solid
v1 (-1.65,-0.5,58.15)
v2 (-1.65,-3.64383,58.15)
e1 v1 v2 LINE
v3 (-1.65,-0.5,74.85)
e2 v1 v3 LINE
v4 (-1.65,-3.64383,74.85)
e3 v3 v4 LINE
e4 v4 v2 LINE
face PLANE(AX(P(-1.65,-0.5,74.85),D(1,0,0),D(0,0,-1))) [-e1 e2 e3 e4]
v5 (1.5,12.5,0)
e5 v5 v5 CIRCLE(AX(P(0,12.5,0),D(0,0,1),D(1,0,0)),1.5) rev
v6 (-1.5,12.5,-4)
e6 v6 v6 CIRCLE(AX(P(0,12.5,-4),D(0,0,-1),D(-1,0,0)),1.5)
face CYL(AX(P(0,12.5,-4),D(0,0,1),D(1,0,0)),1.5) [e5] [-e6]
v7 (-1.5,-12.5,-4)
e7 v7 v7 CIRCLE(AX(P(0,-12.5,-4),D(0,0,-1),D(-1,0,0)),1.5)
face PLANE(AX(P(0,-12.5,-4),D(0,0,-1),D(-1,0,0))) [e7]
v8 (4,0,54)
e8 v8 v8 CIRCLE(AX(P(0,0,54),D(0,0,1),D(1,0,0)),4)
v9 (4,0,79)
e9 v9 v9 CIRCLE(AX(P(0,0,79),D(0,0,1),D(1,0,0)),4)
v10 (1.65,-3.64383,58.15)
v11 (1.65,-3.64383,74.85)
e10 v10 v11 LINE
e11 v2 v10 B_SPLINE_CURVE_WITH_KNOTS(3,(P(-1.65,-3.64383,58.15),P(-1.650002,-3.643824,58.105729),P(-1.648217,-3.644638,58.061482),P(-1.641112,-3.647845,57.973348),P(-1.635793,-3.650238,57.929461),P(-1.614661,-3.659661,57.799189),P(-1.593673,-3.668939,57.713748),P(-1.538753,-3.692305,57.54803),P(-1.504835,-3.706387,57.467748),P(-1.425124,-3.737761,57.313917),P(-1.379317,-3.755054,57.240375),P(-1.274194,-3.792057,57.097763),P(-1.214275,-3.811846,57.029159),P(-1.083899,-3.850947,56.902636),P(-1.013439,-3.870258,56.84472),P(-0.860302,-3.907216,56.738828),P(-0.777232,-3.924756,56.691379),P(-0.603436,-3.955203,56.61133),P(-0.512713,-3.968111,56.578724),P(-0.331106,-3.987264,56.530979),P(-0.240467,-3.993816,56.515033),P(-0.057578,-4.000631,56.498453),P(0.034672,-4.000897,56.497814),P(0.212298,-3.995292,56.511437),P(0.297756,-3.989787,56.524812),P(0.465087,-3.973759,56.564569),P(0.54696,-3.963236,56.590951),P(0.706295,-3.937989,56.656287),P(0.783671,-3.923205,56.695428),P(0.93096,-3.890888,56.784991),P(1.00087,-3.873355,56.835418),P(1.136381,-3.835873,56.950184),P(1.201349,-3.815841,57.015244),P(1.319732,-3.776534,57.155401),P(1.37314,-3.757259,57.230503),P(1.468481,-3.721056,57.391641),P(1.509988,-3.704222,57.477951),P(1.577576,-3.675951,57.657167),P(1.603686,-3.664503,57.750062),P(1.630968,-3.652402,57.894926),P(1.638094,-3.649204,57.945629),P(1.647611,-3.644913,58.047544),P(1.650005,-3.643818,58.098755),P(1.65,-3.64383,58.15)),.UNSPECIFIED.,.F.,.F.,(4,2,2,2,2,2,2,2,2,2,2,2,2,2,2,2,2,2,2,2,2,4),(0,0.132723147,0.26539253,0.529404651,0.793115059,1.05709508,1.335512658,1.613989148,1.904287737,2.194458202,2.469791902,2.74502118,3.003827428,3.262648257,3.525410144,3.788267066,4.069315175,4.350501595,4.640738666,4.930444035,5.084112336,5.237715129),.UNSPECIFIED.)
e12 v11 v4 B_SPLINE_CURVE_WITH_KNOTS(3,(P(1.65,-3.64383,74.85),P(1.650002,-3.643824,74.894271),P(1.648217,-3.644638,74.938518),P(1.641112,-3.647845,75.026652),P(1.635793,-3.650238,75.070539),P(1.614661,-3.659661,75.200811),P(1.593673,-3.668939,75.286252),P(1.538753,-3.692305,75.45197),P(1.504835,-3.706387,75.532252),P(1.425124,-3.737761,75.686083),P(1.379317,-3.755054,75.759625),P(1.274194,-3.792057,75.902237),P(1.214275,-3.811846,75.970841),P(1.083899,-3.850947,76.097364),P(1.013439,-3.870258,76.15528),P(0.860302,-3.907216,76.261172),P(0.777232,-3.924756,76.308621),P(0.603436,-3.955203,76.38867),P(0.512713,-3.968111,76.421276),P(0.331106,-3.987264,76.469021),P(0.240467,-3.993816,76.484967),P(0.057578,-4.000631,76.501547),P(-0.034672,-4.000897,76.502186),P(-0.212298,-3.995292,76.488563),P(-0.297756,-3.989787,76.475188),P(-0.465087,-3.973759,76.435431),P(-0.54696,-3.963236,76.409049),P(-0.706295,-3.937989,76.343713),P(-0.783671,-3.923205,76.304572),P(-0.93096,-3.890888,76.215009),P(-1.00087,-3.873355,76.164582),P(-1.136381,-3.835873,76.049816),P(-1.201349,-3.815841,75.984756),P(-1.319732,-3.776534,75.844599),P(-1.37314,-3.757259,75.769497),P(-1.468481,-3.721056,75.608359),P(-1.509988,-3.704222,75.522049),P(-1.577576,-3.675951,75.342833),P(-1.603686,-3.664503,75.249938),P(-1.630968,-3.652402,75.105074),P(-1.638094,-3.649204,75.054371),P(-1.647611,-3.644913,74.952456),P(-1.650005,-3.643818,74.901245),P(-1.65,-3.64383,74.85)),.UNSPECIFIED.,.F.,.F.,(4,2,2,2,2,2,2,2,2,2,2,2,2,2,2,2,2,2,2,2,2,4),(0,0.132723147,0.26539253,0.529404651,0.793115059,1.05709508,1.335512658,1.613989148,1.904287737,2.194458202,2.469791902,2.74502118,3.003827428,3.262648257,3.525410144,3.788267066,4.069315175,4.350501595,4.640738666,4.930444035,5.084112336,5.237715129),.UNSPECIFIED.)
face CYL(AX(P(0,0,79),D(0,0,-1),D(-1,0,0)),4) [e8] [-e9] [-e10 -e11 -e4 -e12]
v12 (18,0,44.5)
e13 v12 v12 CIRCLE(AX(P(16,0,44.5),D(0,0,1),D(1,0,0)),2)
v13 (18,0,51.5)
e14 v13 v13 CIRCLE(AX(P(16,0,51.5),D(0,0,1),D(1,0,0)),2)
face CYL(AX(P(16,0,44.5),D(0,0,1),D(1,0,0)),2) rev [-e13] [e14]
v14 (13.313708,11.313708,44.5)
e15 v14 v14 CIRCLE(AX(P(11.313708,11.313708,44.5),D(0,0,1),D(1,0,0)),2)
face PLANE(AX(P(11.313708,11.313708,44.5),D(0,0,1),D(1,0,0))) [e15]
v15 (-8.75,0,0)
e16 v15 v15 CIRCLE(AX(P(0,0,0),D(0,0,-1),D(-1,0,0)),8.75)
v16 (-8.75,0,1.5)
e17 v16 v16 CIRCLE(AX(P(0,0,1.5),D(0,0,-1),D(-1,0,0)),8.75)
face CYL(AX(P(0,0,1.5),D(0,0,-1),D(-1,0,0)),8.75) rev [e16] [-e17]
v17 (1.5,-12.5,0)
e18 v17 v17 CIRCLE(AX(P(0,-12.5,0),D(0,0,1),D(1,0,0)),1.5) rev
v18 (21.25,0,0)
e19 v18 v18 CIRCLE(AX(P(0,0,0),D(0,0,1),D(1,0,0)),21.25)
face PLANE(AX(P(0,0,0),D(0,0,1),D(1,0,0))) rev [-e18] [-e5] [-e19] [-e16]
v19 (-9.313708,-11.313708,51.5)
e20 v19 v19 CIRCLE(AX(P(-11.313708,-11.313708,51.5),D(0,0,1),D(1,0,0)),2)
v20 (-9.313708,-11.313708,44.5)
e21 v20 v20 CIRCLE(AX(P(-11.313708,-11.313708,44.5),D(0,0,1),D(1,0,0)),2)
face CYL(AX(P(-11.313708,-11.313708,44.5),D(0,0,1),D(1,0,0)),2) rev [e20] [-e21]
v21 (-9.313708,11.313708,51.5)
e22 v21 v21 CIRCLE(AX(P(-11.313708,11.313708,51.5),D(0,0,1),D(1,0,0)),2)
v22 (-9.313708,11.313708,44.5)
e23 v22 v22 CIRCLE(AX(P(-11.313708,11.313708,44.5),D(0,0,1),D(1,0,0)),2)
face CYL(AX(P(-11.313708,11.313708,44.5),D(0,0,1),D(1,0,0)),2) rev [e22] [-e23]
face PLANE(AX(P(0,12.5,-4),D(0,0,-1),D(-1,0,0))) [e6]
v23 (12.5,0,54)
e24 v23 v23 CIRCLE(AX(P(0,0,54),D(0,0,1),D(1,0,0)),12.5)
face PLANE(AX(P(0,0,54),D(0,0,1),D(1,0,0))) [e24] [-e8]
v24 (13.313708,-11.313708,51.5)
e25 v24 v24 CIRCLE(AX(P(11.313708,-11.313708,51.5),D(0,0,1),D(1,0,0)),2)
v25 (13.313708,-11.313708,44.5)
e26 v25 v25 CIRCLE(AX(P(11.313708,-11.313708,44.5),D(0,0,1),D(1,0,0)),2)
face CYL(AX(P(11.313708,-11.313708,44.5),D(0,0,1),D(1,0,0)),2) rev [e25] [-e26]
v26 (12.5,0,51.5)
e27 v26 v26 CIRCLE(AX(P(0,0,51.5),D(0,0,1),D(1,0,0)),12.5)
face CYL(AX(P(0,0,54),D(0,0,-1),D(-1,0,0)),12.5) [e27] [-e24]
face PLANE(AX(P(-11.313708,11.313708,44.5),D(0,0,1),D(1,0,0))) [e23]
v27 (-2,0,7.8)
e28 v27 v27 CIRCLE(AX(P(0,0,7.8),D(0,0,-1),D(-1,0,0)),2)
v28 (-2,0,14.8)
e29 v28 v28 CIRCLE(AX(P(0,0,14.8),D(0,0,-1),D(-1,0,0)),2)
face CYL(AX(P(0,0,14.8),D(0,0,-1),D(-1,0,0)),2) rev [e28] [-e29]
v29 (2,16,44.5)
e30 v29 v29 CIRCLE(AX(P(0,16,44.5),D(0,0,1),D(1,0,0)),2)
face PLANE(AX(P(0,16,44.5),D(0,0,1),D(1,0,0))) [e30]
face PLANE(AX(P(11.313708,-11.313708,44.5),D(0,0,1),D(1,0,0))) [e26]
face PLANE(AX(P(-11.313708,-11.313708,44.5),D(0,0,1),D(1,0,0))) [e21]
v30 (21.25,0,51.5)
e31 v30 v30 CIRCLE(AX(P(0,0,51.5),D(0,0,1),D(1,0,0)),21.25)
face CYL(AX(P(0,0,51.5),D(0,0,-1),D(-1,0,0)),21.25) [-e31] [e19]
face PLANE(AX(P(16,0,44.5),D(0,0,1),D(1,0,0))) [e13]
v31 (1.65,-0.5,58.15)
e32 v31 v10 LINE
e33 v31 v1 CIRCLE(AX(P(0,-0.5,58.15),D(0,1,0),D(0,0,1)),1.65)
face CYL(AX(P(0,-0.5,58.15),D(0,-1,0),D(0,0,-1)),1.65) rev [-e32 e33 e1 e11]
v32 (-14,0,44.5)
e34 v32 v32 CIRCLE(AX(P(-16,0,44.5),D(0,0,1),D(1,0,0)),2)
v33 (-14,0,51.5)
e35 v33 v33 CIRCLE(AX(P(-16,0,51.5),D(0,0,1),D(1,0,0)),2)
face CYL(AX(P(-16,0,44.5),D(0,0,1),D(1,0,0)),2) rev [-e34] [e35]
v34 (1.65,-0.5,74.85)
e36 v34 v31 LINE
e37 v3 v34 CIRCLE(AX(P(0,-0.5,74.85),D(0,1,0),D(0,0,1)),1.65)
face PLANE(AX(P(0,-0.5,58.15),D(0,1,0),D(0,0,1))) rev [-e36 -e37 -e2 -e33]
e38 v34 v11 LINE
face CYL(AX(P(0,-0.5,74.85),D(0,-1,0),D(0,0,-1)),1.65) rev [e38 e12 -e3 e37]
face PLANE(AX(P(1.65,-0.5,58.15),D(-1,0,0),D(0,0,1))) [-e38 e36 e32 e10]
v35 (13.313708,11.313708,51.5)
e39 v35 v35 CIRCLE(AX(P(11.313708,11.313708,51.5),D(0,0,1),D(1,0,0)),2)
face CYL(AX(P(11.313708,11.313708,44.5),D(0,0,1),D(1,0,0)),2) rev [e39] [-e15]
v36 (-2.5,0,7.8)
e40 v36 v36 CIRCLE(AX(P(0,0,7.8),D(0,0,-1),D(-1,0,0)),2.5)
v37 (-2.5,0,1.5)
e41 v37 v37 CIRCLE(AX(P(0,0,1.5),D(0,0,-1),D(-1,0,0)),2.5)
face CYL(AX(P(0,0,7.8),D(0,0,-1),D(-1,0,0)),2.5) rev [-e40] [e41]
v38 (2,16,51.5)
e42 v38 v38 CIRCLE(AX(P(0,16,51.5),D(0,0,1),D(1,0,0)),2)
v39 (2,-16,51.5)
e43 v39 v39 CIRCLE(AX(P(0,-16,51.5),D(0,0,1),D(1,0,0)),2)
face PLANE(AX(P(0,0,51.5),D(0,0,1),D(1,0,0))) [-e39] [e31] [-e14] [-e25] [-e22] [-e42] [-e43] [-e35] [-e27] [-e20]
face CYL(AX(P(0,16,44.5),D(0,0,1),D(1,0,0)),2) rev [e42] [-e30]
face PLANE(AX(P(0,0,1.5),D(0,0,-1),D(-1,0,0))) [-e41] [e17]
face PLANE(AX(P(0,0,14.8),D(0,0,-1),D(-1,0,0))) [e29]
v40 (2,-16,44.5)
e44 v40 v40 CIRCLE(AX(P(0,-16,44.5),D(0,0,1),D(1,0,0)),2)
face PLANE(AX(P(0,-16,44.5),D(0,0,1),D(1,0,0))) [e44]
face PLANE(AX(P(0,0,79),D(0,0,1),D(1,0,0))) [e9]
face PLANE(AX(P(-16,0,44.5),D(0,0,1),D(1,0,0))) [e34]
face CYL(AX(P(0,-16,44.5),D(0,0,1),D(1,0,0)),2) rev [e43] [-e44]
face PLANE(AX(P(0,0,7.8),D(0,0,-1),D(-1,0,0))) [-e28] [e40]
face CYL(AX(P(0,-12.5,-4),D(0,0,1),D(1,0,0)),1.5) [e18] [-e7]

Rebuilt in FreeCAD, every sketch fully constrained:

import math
import FreeCAD as App
import Part
import Sketcher
from FreeCAD import Vector
Q = App.Units.Quantity

doc = App.newDocument("Part")
body = doc.addObject("PartDesign::Body", "Body")

# Sketch on XY plane
sketch1 = doc.addObject("Sketcher::SketchObject", "Sketch")
body.addObject(sketch1)
sketch1.AttachmentSupport = (doc.XY_Plane, [""])
sketch1.MapMode = "FlatFace"
sketch1.addGeometry(Part.Circle(Vector(0, 0, 0), Vector(0, 0, 1), 21), False)
sketch1.addConstraint(Sketcher.Constraint("Coincident", 0, 3, -1, 1))
sketch1.addConstraint(Sketcher.Constraint("Diameter", 0, Q("42.5 mm")))
pad1 = doc.addObject("PartDesign::Pad", "Pad")
body.addObject(pad1)
pad1.Profile = sketch1
pad1.Length = 51.5

# Sketch on XY plane
sketch2 = doc.addObject("Sketcher::SketchObject", "Sketch001")
body.addObject(sketch2)
sketch2.AttachmentSupport = (doc.XY_Plane, [""])
sketch2.MapMode = "FlatFace"
sketch2.addGeometry(Part.Circle(Vector(0, 12.5, 0), Vector(0, 0, 1), 1.5), False)
sketch2.addGeometry(Part.Circle(Vector(0, -12.5, 0), Vector(0, 0, 1), 1.5), False)
sketch2.addConstraint(Sketcher.Constraint("Equal", 0, 1))
sketch2.addConstraint(Sketcher.Constraint("Symmetric", 0, 3, 1, 3, -1, 1))
sketch2.addConstraint(Sketcher.Constraint("PointOnObject", 0, 3, -2))
sketch2.addConstraint(Sketcher.Constraint("Diameter", 0, Q("3 mm")))
sketch2.addConstraint(Sketcher.Constraint("DistanceY", 1, 3, 0, 3, Q("25 mm")))
pad2 = doc.addObject("PartDesign::Pad", "Pad001")
body.addObject(pad2)
pad2.Profile = sketch2
pad2.Length = 4
pad2.Reversed = True

# Sketch on XY plane
sketch3 = doc.addObject("Sketcher::SketchObject", "Sketch002")
body.addObject(sketch3)
sketch3.AttachmentSupport = (doc.XY_Plane, [""])
sketch3.MapMode = "FlatFace"
sketch3.addGeometry(Part.Circle(Vector(0, 0, 0), Vector(0, 0, 1), 9), False)
sketch3.addConstraint(Sketcher.Constraint("Coincident", 0, 3, -1, 1))
sketch3.addConstraint(Sketcher.Constraint("Diameter", 0, Q("17.5 mm")))
pocket1 = doc.addObject("PartDesign::Pocket", "Pocket")
body.addObject(pocket1)
pocket1.Profile = sketch3
pocket1.Length = 1.5
pocket1.Reversed = True

# Sketch on XY plane
sketch4 = doc.addObject("Sketcher::SketchObject", "Sketch003")
body.addObject(sketch4)
sketch4.AttachmentSupport = (doc.XY_Plane, [""])
sketch4.MapMode = "FlatFace"
sketch4.AttachmentOffset = App.Placement(Vector(0, 0, 1.5), App.Rotation())
sketch4.addGeometry(Part.Circle(Vector(0, 0, 0), Vector(0, 0, 1), 2.5), False)
sketch4.addConstraint(Sketcher.Constraint("Coincident", 0, 3, -1, 1))
sketch4.addConstraint(Sketcher.Constraint("Diameter", 0, Q("5 mm")))
pocket2 = doc.addObject("PartDesign::Pocket", "Pocket001")
body.addObject(pocket2)
pocket2.Profile = sketch4
pocket2.Length = 6.3
pocket2.Reversed = True

# Sketch on XY plane
sketch5 = doc.addObject("Sketcher::SketchObject", "Sketch004")
body.addObject(sketch5)
sketch5.AttachmentSupport = (doc.XY_Plane, [""])
sketch5.MapMode = "FlatFace"
sketch5.AttachmentOffset = App.Placement(Vector(0, 0, 7.8), App.Rotation())
sketch5.addGeometry(Part.Circle(Vector(0, 0, 0), Vector(0, 0, 1), 2), False)
sketch5.addConstraint(Sketcher.Constraint("Coincident", 0, 3, -1, 1))
sketch5.addConstraint(Sketcher.Constraint("Diameter", 0, Q("4 mm")))
pocket3 = doc.addObject("PartDesign::Pocket", "Pocket002")
body.addObject(pocket3)
pocket3.Profile = sketch5
pocket3.Length = 7
pocket3.Reversed = True

# Sketch on XY plane
sketch6 = doc.addObject("Sketcher::SketchObject", "Sketch005")
body.addObject(sketch6)
sketch6.AttachmentSupport = (doc.XY_Plane, [""])
sketch6.MapMode = "FlatFace"
sketch6.AttachmentOffset = App.Placement(Vector(0, 0, 51.5), App.Rotation())
sketch6.addGeometry(Part.Circle(Vector(0, 0, 0), Vector(0, 0, 1), 12), False)
sketch6.addConstraint(Sketcher.Constraint("Coincident", 0, 3, -1, 1))
sketch6.addConstraint(Sketcher.Constraint("Diameter", 0, Q("25 mm")))
pad3 = doc.addObject("PartDesign::Pad", "Pad002")
body.addObject(pad3)
pad3.Profile = sketch6
pad3.Length = 2.5

# Sketch on XY plane
sketch7 = doc.addObject("Sketcher::SketchObject", "Sketch006")
body.addObject(sketch7)
sketch7.AttachmentSupport = (doc.XY_Plane, [""])
sketch7.MapMode = "FlatFace"
sketch7.AttachmentOffset = App.Placement(Vector(0, 0, 54), App.Rotation())
sketch7.addGeometry(Part.Circle(Vector(0, 0, 0), Vector(0, 0, 1), 4), False)
sketch7.addConstraint(Sketcher.Constraint("Coincident", 0, 3, -1, 1))
sketch7.addConstraint(Sketcher.Constraint("Diameter", 0, Q("8 mm")))
pad4 = doc.addObject("PartDesign::Pad", "Pad003")
body.addObject(pad4)
pad4.Profile = sketch7
pad4.Length = 25

# Sketch on XZ plane
sketch8 = doc.addObject("Sketcher::SketchObject", "Sketch007")
body.addObject(sketch8)
sketch8.AttachmentSupport = (doc.XZ_Plane, [""])
sketch8.MapMode = "FlatFace"
sketch8.AttachmentOffset = App.Placement(Vector(0, 0, 4), App.Rotation())
sketch8.addGeometry(Part.LineSegment(Vector(-1.6, 58.1, 0), Vector(-1.6, 74.8, 0)), False)
sketch8.addGeometry(Part.ArcOfCircle(Part.Circle(Vector(0, 74.8, 0), Vector(0, 0, 1), 1.6), math.radians(0), math.radians(180)), False)
sketch8.addGeometry(Part.LineSegment(Vector(1.6, 74.8, 0), Vector(1.6, 58.1, 0)), False)
sketch8.addGeometry(Part.ArcOfCircle(Part.Circle(Vector(0, 58.1, 0), Vector(0, 0, 1), 1.6), math.radians(180), math.radians(360)), False)
sketch8.addConstraint(Sketcher.Constraint("Tangent", 0, 2, 1, 2))
sketch8.addConstraint(Sketcher.Constraint("Tangent", 1, 1, 2, 1))
sketch8.addConstraint(Sketcher.Constraint("Tangent", 2, 2, 3, 2))
sketch8.addConstraint(Sketcher.Constraint("Tangent", 3, 1, 0, 1))
sketch8.addConstraint(Sketcher.Constraint("Vertical", 0))
sketch8.addConstraint(Sketcher.Constraint("Vertical", 2))
sketch8.addConstraint(Sketcher.Constraint("PointOnObject", 1, 3, -2))
sketch8.addConstraint(Sketcher.Constraint("Radius", 1, Q("1.65 mm")))
sketch8.addConstraint(Sketcher.Constraint("DistanceY", 0, 1, 0, 2, Q("16.7 mm")))
sketch8.addConstraint(Sketcher.Constraint("DistanceY", -1, 1, 1, 3, Q("74.85 mm")))
pocket4 = doc.addObject("PartDesign::Pocket", "Pocket003")
body.addObject(pocket4)
pocket4.Profile = sketch8
pocket4.Length = 3.5

# Sketch on XY plane
sketch9 = doc.addObject("Sketcher::SketchObject", "Sketch008")
body.addObject(sketch9)
sketch9.AttachmentSupport = (doc.XY_Plane, [""])
sketch9.MapMode = "FlatFace"
sketch9.AttachmentOffset = App.Placement(Vector(0, 0, 51.5), App.Rotation())
sketch9.addGeometry(Part.Circle(Vector(16, 0, 0), Vector(0, 0, 1), 2), False)
sketch9.addGeometry(Part.Circle(Vector(0, -16, 0), Vector(0, 0, 1), 2), False)
sketch9.addGeometry(Part.Circle(Vector(-16, 0, 0), Vector(0, 0, 1), 2), False)
sketch9.addGeometry(Part.Circle(Vector(0, 16, 0), Vector(0, 0, 1), 2), False)
sketch9.addGeometry(Part.Circle(Vector(11.3, 11.3, 0), Vector(0, 0, 1), 2), False)
sketch9.addGeometry(Part.Circle(Vector(11.3, -11.3, 0), Vector(0, 0, 1), 2), False)
sketch9.addGeometry(Part.Circle(Vector(-11.3, -11.3, 0), Vector(0, 0, 1), 2), False)
sketch9.addGeometry(Part.Circle(Vector(-11.3, 11.3, 0), Vector(0, 0, 1), 2), False)
sketch9.addConstraint(Sketcher.Constraint("Equal", 0, 1))
sketch9.addConstraint(Sketcher.Constraint("Equal", 1, 2))
sketch9.addConstraint(Sketcher.Constraint("Equal", 2, 3))
sketch9.addConstraint(Sketcher.Constraint("Equal", 3, 4))
sketch9.addConstraint(Sketcher.Constraint("Equal", 4, 5))
sketch9.addConstraint(Sketcher.Constraint("Equal", 5, 6))
sketch9.addConstraint(Sketcher.Constraint("Equal", 6, 7))
sketch9.addConstraint(Sketcher.Constraint("Symmetric", 0, 3, 2, 3, -1, 1))
sketch9.addConstraint(Sketcher.Constraint("Symmetric", 1, 3, 3, 3, -1, 1))
sketch9.addConstraint(Sketcher.Constraint("Symmetric", 4, 3, 6, 3, -1, 1))
sketch9.addConstraint(Sketcher.Constraint("Symmetric", 5, 3, 7, 3, -1, 1))
sketch9.addConstraint(Sketcher.Constraint("Symmetric", 5, 3, 6, 3, -2))
sketch9.addConstraint(Sketcher.Constraint("PointOnObject", 0, 3, -1))
sketch9.addConstraint(Sketcher.Constraint("PointOnObject", 1, 3, -2))
sketch9.addConstraint(Sketcher.Constraint("Diameter", 0, Q("4 mm")))
sketch9.addConstraint(Sketcher.Constraint("DistanceX", -1, 1, 0, 3, Q("16 mm")))
sketch9.addConstraint(Sketcher.Constraint("DistanceY", 1, 3, -1, 1, Q("16 mm")))
sketch9.addConstraint(Sketcher.Constraint("DistanceX", -1, 1, 4, 3, Q("11.313708 mm")))
sketch9.addConstraint(Sketcher.Constraint("DistanceY", -1, 1, 4, 3, Q("11.313708 mm")))
pocket5 = doc.addObject("PartDesign::Pocket", "Pocket004")
body.addObject(pocket5)
pocket5.Profile = sketch9
pocket5.Length = 7

doc.recompute()
